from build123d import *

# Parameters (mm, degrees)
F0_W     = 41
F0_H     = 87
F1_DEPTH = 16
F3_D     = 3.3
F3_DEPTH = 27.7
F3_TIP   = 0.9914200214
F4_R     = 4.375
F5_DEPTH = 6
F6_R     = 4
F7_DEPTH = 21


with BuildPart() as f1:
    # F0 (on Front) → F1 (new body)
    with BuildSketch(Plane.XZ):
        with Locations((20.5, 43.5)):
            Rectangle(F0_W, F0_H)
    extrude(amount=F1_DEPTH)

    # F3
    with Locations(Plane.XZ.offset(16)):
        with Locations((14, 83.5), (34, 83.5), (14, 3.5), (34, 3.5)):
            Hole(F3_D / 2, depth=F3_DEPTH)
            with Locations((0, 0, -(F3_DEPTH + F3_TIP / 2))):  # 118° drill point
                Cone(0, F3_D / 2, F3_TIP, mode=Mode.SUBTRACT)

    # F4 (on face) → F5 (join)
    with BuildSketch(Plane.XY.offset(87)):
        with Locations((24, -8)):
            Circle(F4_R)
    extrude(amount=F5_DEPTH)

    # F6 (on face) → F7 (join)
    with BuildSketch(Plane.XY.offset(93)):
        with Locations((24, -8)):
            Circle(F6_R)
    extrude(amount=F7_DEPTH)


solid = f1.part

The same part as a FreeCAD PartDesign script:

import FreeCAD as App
import Part
import Sketcher
from FreeCAD import Vector


def add_polygon(sketch, points):
    """Adds a closed chain of lines whose ends are joined by coincident constraints."""
    first, n = sketch.GeometryCount, len(points)
    for a, b in zip(points, points[1:] + points[:1]):
        sketch.addGeometry(Part.LineSegment(App.Vector(*a, 0), App.Vector(*b, 0)), False)
    for i in range(n):
        sketch.addConstraint(Sketcher.Constraint("Coincident", first + i, 2, first + (i + 1) % n, 1))

doc = App.newDocument("Part")
body = doc.addObject("PartDesign::Body", "Body")

# Sketch on XZ plane
sketch1 = body.newObject("Sketcher::SketchObject", "Sketch")
sketch1.AttachmentSupport = (doc.getObject("XZ_Plane"), [""])
sketch1.MapMode = "FlatFace"
add_polygon(sketch1, [(0, 87), (0, 0), (41, 0), (41, 87)])  # lines 0-3
sketch1.addConstraint(Sketcher.Constraint("Vertical", 0))
sketch1.addConstraint(Sketcher.Constraint("Horizontal", 1))
sketch1.addConstraint(Sketcher.Constraint("Vertical", 2))
sketch1.addConstraint(Sketcher.Constraint("Horizontal", 3))
sketch1.addConstraint(Sketcher.Constraint("Coincident", 0, 2, -1, 1))
sketch1.addConstraint(Sketcher.Constraint("DistanceX", 1, 1, 1, 2, 41.0))
sketch1.addConstraint(Sketcher.Constraint("DistanceY", 0, 2, 0, 1, 87.0))
pad1 = body.newObject("PartDesign::Pad", "Pad")
pad1.Profile = sketch1
pad1.Length = 16

# Sketch on XZ plane
sketch2 = body.newObject("Sketcher::SketchObject", "Sketch001")
sketch2.AttachmentSupport = (doc.getObject("XZ_Plane"), [""])
sketch2.MapMode = "FlatFace"
sketch2.AttachmentOffset = App.Placement(Vector(0, 0, 16), App.Rotation())
sketch2.addGeometry(Part.Circle(Vector(14, 83.5, 0), Vector(0, 0, 1), 1.6), False)
sketch2.addGeometry(Part.Circle(Vector(34, 83.5, 0), Vector(0, 0, 1), 1.6), False)
sketch2.addGeometry(Part.Circle(Vector(14, 3.5, 0), Vector(0, 0, 1), 1.6), False)
sketch2.addGeometry(Part.Circle(Vector(34, 3.5, 0), Vector(0, 0, 1), 1.6), False)
sketch2.addConstraint(Sketcher.Constraint("Equal", 0, 1))
sketch2.addConstraint(Sketcher.Constraint("Equal", 1, 2))
sketch2.addConstraint(Sketcher.Constraint("Equal", 2, 3))
sketch2.addConstraint(Sketcher.Constraint("Horizontal", 0, 3, 1, 3))
sketch2.addConstraint(Sketcher.Constraint("Horizontal", 2, 3, 3, 3))
sketch2.addConstraint(Sketcher.Constraint("Vertical", 0, 3, 2, 3))
sketch2.addConstraint(Sketcher.Constraint("Vertical", 1, 3, 3, 3))
sketch2.addConstraint(Sketcher.Constraint("Diameter", 0, 3.3))
sketch2.addConstraint(Sketcher.Constraint("DistanceX", -1, 1, 0, 3, 14.0))
sketch2.addConstraint(Sketcher.Constraint("DistanceX", -1, 1, 1, 3, 34.0))
sketch2.addConstraint(Sketcher.Constraint("DistanceY", 2, 3, 0, 3, 80.0))
sketch2.addConstraint(Sketcher.Constraint("DistanceY", -1, 1, 0, 3, 83.5))
doc.recompute()
hole = body.newObject("PartDesign::Hole", "Hole")
hole.Profile = sketch2
hole.ThreadType = "None"
hole.Diameter = 3.3
hole.DepthType = "Dimension"
hole.Depth = 27.7
hole.DrillPoint = "Angled"
hole.DrillPointAngle = 118

# Sketch on XY plane
sketch3 = body.newObject("Sketcher::SketchObject", "Sketch002")
sketch3.AttachmentSupport = (doc.getObject("XY_Plane"), [""])
sketch3.MapMode = "FlatFace"
sketch3.AttachmentOffset = App.Placement(Vector(0, 0, 87), App.Rotation())
sketch3.addGeometry(Part.Circle(Vector(24, -8, 0), Vector(0, 0, 1), 4.4), False)
sketch3.addConstraint(Sketcher.Constraint("Diameter", 0, 8.75))
sketch3.addConstraint(Sketcher.Constraint("DistanceX", -1, 1, 0, 3, 24.0))
sketch3.addConstraint(Sketcher.Constraint("DistanceY", 0, 3, -1, 1, 8.0))
pad2 = body.newObject("PartDesign::Pad", "Pad001")
pad2.Profile = sketch3
pad2.Length = 6

# Sketch on XY plane
sketch4 = body.newObject("Sketcher::SketchObject", "Sketch003")
sketch4.AttachmentSupport = (doc.getObject("XY_Plane"), [""])
sketch4.MapMode = "FlatFace"
sketch4.AttachmentOffset = App.Placement(Vector(0, 0, 93), App.Rotation())
sketch4.addGeometry(Part.Circle(Vector(24, -8, 0), Vector(0, 0, 1), 4), False)
sketch4.addConstraint(Sketcher.Constraint("Diameter", 0, 8.0))
sketch4.addConstraint(Sketcher.Constraint("DistanceX", -1, 1, 0, 3, 24.0))
sketch4.addConstraint(Sketcher.Constraint("DistanceY", 0, 3, -1, 1, 8.0))
pad3 = body.newObject("PartDesign::Pad", "Pad002")
pad3.Profile = sketch4
pad3.Length = 21

doc.recompute()
